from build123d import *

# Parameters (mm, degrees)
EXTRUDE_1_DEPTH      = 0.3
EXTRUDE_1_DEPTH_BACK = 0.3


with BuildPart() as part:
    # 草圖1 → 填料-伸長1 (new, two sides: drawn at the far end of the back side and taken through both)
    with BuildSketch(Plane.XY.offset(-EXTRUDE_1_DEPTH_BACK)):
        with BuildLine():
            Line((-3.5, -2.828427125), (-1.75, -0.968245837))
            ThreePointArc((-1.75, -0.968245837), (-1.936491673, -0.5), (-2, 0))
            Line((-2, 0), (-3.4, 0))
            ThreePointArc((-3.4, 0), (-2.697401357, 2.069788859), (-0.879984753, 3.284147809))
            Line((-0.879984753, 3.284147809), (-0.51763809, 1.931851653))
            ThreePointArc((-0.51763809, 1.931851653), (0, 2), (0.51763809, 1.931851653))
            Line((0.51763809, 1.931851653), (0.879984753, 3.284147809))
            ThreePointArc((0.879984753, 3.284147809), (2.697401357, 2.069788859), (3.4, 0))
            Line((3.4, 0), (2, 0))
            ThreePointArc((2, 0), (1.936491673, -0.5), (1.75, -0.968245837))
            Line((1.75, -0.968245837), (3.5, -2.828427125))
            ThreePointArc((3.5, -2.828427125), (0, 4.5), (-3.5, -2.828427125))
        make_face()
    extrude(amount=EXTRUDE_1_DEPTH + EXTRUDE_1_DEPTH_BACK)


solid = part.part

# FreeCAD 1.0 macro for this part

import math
import FreeCAD as App
import Part
import Sketcher

V = App.Vector
Q = App.Units.Quantity

doc = App.newDocument("Part")
body = doc.addObject("PartDesign::Body", "Body")

# Sketch on XY plane
sketch1 = body.newObject("Sketcher::SketchObject", "Sketch")
sketch1.AttachmentSupport = (doc.getObject("XY_Plane"), [""])
sketch1.MapMode = "FlatFace"
sketch1.addGeometry([
    Part.LineSegment(V(-3.5, -2.8, 0), V(-1.8, -1, 0)),  # 0
    Part.ArcOfCircle(Part.Circle(V(0, 0, 0), V(0, 0, 1), 2), math.radians(-180), math.radians(-151)),  # 1
    Part.LineSegment(V(-2, 0, 0), V(-3.4, 0, 0)),  # 2
    Part.ArcOfCircle(Part.Circle(V(0, 0, 0), V(0, 0, 1), 3.4), math.radians(105), math.radians(180)),  # 3
    Part.LineSegment(V(-0.9, 3.3, 0), V(-0.5, 1.9, 0)),  # 4
    Part.ArcOfCircle(Part.Circle(V(0, 0, 0), V(0, 0, 1), 2), math.radians(75), math.radians(105)),  # 5
    Part.LineSegment(V(0.5, 1.9, 0), V(0.9, 3.3, 0)),  # 6
    Part.ArcOfCircle(Part.Circle(V(0, 0, 0), V(0, 0, 1), 3.4), math.radians(0), math.radians(75)),  # 7
    Part.LineSegment(V(3.4, 0, 0), V(2, 0, 0)),  # 8
    Part.ArcOfCircle(Part.Circle(V(0, 0, 0), V(0, 0, 1), 2), math.radians(-29), math.radians(0)),  # 9
    Part.LineSegment(V(1.8, -1, 0), V(3.5, -2.8, 0)),  # 10
    Part.ArcOfCircle(Part.Circle(V(0, 0, 0), V(0, 0, 1), 4.5), math.radians(-39), math.radians(219)),  # 11
], False)
sketch1.addConstraint([
    Sketcher.Constraint("Coincident", 0, 2, 1, 2),
    Sketcher.Constraint("Coincident", 1, 1, 2, 1),
    Sketcher.Constraint("Coincident", 2, 2, 3, 2),
    Sketcher.Constraint("Coincident", 3, 1, 4, 1),
    Sketcher.Constraint("Coincident", 4, 2, 5, 2),
    Sketcher.Constraint("Coincident", 5, 1, 6, 1),
    Sketcher.Constraint("Coincident", 6, 2, 7, 2),
    Sketcher.Constraint("Coincident", 7, 1, 8, 1),
    Sketcher.Constraint("Coincident", 8, 2, 9, 2),
    Sketcher.Constraint("Coincident", 9, 1, 10, 1),
    Sketcher.Constraint("Coincident", 10, 2, 11, 1),
    Sketcher.Constraint("Coincident", 11, 2, 0, 1),
    Sketcher.Constraint("Horizontal", 2),
    Sketcher.Constraint("Horizontal", 8),
    Sketcher.Constraint("Coincident", 1, 3, -1, 1),
    Sketcher.Constraint("Coincident", 3, 3, -1, 1),
    Sketcher.Constraint("Coincident", 5, 3, -1, 1),
    Sketcher.Constraint("Coincident", 7, 3, -1, 1),
    Sketcher.Constraint("Coincident", 9, 3, -1, 1),
    Sketcher.Constraint("Coincident", 11, 3, -1, 1),
    Sketcher.Constraint("Equal", 1, 5),
    Sketcher.Constraint("Equal", 3, 7),
    Sketcher.Constraint("Equal", 5, 9),
    Sketcher.Constraint("PointOnObject", 1, 1, -1),
    Sketcher.Constraint("PointOnObject", 7, 1, -1),
    Sketcher.Constraint("Horizontal", 4, 2, 5, 1),
    Sketcher.Constraint("Horizontal", 3, 1, 6, 2),
    Sketcher.Constraint("Horizontal", 0, 2, 9, 1),
    Sketcher.Constraint("Horizontal", 10, 2, 11, 2),
    Sketcher.Constraint("Radius", 1, 2.0),
    Sketcher.Constraint("Radius", 3, 3.4),
    Sketcher.Constraint("Radius", 11, 4.5),
    Sketcher.Constraint("Angle", 4, Q("-75 deg")),
    Sketcher.Constraint("DistanceX", -1, 1, 10, 2, 3.5),
    Sketcher.Constraint("DistanceX", 0, 2, -1, 1, 1.75),
    Sketcher.Constraint("DistanceX", 4, 2, -1, 1, 0.517638),
])
pad1 = body.newObject("PartDesign::Pad", "Pad")
pad1.Profile = sketch1
pad1.Type = "TwoLengths"
pad1.Length = 0.3
pad1.Length2 = 0.3

doc.recompute()
